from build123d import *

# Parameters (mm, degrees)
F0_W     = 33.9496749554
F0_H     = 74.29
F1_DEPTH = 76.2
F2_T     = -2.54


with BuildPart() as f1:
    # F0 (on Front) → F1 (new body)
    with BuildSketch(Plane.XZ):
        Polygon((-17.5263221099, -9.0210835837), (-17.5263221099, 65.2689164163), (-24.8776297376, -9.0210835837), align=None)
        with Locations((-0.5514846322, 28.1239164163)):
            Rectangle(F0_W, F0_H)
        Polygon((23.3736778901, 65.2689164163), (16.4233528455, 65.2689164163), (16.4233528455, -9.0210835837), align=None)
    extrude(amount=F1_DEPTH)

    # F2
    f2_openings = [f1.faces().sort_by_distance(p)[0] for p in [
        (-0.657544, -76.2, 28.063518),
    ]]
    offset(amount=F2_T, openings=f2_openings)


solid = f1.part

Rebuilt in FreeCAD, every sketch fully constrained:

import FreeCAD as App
import Part
import Sketcher
Q = App.Units.Quantity


def faces_at(feature, points):
    """Names of the faces that lie closest to the given points."""
    faces = feature.Shape.Faces
    near = lambda p: min(range(len(faces)), key=lambda i: faces[i].distToShape(Part.Vertex(*p))[0])
    return sorted({f"Face{near(p) + 1}" for p in points})

doc = App.newDocument("Part")
body = doc.addObject("PartDesign::Body", "Body")

# Sketch on XZ plane
sketch1 = body.newObject("Sketcher::SketchObject", "Sketch")
sketch1.AttachmentSupport = (doc.getObject("XZ_Plane"), [""])
sketch1.MapMode = "FlatFace"
sketch1.addGeometry(Part.LineSegment(App.Vector(-18, 65, 0), App.Vector(-25, -9, 0)), False)
sketch1.addGeometry(Part.LineSegment(App.Vector(-25, -9, 0), App.Vector(16, -9, 0)), False)
sketch1.addGeometry(Part.LineSegment(App.Vector(16, -9, 0), App.Vector(23, 65, 0)), False)
sketch1.addGeometry(Part.LineSegment(App.Vector(23, 65, 0), App.Vector(-18, 65, 0)), False)
sketch1.addConstraint(Sketcher.Constraint("Coincident", 0, 2, 1, 1))
sketch1.addConstraint(Sketcher.Constraint("Coincident", 1, 2, 2, 1))
sketch1.addConstraint(Sketcher.Constraint("Coincident", 2, 2, 3, 1))
sketch1.addConstraint(Sketcher.Constraint("Coincident", 3, 2, 0, 1))
sketch1.addConstraint(Sketcher.Constraint("Horizontal", 1))
sketch1.addConstraint(Sketcher.Constraint("Horizontal", 3))
sketch1.addConstraint(Sketcher.Constraint("DistanceX", 3, 2, 3, 1, Q("40.9 mm")))
sketch1.addConstraint(Sketcher.Constraint("DistanceY", 1, 2, 2, 2, Q("74.29 mm")))
sketch1.addConstraint(Sketcher.Constraint("DistanceX", 1, 1, 1, 2, Q("41.300983 mm")))
sketch1.addConstraint(Sketcher.Constraint("DistanceX", 0, 2, -1, 1, Q("24.87763 mm")))
sketch1.addConstraint(Sketcher.Constraint("Distance", 0, Q("74.652835 mm")))
sketch1.addConstraint(Sketcher.Constraint("DistanceY", 0, 2, -1, 1, Q("9.021084 mm")))
pad1 = body.newObject("PartDesign::Pad", "Pad")
pad1.Profile = sketch1
pad1.Length = Q("3 in")
doc.recompute()

thickness = body.newObject("PartDesign::Thickness", "Thickness")
thickness.Base = (pad1, faces_at(pad1, [(-0.752, -76.2, 28.124)]))
thickness.Value = Q("0.1 in")
thickness.Reversed = True
thickness.Join = "Arc"

doc.recompute()
